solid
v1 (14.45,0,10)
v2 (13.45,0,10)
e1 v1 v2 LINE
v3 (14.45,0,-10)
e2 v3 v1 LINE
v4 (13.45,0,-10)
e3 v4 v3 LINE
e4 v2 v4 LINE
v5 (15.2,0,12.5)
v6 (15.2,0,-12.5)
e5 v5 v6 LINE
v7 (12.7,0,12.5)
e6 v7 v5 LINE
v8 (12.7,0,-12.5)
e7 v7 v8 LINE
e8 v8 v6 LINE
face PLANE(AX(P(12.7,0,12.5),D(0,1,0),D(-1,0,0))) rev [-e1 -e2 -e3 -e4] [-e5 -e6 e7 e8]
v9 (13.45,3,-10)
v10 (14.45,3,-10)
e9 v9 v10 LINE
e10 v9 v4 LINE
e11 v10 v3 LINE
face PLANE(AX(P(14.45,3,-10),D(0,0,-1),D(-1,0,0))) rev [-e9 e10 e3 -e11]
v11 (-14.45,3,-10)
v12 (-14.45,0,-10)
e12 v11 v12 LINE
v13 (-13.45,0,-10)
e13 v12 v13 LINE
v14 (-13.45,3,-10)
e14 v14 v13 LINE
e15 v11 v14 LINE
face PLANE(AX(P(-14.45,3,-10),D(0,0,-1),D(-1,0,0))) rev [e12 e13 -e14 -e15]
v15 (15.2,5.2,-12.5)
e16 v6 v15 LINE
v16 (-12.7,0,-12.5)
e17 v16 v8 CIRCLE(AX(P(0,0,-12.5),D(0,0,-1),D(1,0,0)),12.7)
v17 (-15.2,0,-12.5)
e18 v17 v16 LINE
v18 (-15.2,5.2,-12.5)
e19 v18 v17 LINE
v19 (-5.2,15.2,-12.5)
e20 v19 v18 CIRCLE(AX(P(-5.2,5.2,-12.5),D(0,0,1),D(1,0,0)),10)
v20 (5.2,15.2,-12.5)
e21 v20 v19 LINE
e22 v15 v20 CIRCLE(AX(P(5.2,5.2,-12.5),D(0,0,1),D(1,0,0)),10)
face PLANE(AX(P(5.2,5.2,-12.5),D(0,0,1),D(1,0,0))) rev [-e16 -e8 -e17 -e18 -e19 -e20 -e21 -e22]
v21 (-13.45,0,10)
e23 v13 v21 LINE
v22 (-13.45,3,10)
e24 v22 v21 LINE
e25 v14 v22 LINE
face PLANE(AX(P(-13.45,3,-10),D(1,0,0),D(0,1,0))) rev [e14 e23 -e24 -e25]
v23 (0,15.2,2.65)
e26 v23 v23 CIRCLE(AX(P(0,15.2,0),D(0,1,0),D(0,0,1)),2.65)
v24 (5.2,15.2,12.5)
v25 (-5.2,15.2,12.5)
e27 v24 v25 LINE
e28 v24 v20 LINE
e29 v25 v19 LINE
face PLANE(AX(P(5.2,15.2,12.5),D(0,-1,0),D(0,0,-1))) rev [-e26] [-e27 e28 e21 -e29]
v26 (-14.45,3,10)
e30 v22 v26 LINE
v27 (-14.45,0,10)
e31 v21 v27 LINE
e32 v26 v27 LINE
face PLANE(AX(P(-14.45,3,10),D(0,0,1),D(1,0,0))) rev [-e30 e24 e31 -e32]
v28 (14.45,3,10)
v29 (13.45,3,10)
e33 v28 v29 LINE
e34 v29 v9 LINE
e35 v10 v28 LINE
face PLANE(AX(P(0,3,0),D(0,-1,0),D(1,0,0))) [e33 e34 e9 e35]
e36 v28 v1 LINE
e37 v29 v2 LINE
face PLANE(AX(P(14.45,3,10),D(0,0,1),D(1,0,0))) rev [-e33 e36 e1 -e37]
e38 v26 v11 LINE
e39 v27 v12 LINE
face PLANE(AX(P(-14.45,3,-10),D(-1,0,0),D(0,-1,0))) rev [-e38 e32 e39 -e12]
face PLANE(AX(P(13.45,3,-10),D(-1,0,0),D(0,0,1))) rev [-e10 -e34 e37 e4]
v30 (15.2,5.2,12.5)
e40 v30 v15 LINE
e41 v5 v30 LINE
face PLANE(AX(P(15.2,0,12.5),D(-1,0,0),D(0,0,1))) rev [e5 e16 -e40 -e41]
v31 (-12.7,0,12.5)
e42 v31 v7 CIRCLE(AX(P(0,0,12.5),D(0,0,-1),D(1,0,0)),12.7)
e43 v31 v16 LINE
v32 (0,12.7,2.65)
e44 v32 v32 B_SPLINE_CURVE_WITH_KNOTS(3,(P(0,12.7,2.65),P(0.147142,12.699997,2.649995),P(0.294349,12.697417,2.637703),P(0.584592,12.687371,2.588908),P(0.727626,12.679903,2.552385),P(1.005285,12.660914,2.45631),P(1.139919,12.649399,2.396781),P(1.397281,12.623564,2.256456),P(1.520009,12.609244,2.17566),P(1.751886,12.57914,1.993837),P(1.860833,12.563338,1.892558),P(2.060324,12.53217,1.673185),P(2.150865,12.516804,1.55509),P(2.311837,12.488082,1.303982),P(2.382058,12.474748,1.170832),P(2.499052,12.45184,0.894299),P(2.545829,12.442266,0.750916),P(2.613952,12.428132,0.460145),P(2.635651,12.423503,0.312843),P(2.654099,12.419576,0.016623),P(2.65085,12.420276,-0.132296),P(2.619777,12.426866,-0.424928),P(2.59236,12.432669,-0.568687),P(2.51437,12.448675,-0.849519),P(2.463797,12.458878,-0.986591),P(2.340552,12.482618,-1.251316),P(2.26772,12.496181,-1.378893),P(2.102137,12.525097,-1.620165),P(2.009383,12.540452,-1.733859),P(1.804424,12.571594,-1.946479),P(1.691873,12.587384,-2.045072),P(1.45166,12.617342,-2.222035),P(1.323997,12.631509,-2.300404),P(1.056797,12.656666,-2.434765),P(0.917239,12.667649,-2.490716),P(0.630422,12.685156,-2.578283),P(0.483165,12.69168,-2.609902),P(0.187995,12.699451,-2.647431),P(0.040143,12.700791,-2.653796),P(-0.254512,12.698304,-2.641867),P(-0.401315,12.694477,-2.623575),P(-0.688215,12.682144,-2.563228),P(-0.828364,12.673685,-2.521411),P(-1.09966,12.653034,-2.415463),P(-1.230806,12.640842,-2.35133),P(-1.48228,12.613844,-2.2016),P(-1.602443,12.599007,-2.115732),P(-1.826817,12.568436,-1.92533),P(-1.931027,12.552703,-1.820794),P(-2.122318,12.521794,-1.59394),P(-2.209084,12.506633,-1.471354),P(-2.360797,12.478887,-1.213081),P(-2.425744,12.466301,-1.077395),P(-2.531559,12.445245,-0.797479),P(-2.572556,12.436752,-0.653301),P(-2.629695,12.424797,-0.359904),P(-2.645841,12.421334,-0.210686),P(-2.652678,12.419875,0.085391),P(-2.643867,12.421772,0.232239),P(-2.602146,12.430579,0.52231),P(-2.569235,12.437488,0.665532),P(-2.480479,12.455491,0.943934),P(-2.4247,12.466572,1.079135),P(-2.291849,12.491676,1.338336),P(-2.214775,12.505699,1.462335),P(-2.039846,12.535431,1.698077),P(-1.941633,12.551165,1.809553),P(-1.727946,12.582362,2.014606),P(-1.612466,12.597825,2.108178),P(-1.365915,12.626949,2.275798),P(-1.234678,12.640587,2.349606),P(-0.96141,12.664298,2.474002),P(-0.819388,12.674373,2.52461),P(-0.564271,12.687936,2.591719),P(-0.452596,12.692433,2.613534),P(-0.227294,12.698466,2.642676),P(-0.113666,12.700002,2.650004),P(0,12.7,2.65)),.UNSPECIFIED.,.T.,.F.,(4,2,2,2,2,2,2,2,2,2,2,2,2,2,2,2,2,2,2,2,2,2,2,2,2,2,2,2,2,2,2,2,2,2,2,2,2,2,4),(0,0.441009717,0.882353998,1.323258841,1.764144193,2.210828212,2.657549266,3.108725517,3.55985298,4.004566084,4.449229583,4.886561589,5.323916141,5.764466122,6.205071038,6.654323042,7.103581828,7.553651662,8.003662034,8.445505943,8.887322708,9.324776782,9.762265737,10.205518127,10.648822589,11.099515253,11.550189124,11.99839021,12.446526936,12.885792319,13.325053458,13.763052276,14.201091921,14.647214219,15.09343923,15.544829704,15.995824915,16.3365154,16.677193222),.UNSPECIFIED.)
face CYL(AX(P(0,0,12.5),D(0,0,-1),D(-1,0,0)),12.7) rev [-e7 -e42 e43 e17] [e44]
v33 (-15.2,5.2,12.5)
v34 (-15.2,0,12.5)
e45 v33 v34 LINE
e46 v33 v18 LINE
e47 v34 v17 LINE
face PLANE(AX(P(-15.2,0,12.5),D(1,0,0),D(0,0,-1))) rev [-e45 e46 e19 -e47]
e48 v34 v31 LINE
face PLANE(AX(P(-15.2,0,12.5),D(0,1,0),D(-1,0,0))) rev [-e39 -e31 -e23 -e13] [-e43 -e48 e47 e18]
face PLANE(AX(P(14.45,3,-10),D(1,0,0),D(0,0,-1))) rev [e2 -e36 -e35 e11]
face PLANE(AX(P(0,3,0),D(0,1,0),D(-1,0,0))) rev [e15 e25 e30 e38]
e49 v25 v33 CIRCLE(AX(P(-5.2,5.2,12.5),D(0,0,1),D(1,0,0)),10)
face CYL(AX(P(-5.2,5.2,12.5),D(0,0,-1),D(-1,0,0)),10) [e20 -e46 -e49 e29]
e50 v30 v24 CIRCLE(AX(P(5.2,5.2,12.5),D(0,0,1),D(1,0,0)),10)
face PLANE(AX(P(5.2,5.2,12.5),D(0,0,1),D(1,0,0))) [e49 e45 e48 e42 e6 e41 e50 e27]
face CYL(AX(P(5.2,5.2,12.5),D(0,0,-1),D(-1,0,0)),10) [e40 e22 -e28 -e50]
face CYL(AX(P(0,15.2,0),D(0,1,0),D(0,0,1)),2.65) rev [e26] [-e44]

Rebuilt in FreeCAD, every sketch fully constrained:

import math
import FreeCAD as App
import Part
import Sketcher
from FreeCAD import Vector
Q = App.Units.Quantity


def add_polygon(sketch, points):
    """Adds a closed chain of lines whose ends are joined by coincident constraints."""
    first, n = sketch.GeometryCount, len(points)
    for a, b in zip(points, points[1:] + points[:1]):
        sketch.addGeometry(Part.LineSegment(App.Vector(*a, 0), App.Vector(*b, 0)), False)
    for i in range(n):
        sketch.addConstraint(Sketcher.Constraint("Coincident", first + i, 2, first + (i + 1) % n, 1))

doc = App.newDocument("Part")
body = doc.addObject("PartDesign::Body", "Body")

sketch1 = body.newObject("Sketcher::SketchObject", "Sketch")
sketch1.AttachmentSupport = (doc.getObject("XY_Plane"), [""])
sketch1.MapMode = "FlatFace"
sketch1.addGeometry([
    Part.LineSegment(Vector(-15.2, 0, 0), Vector(-12.7, 0, 0)),
    Part.ArcOfCircle(Part.Circle(Vector(0, 0, 0), Vector(0, 0, 1), 12.7), math.radians(0), math.radians(180)),
    Part.LineSegment(Vector(12.7, 0, 0), Vector(15.2, 0, 0)),
    Part.LineSegment(Vector(15.2, 0, 0), Vector(15.2, 5.2, 0)),
    Part.ArcOfCircle(Part.Circle(Vector(5.2, 5.2, 0), Vector(0, 0, 1), 10), math.radians(0), math.radians(90)),
    Part.LineSegment(Vector(5.2, 15.2, 0), Vector(-5.2, 15.2, 0)),
    Part.ArcOfCircle(Part.Circle(Vector(-5.2, 5.2, 0), Vector(0, 0, 1), 10), math.radians(90), math.radians(180)),
    Part.LineSegment(Vector(-15.2, 5.2, 0), Vector(-15.2, 0, 0)),
], False)
sketch1.addConstraint([
    Sketcher.Constraint("Coincident", 0, 2, 1, 2),
    Sketcher.Constraint("Coincident", 1, 1, 2, 1),
    Sketcher.Constraint("Coincident", 2, 2, 3, 1),
    Sketcher.Constraint("Tangent", 3, 2, 4, 1),
    Sketcher.Constraint("Tangent", 4, 2, 5, 1),
    Sketcher.Constraint("Tangent", 5, 2, 6, 1),
    Sketcher.Constraint("Tangent", 6, 2, 7, 1),
    Sketcher.Constraint("Coincident", 7, 2, 0, 1),
    Sketcher.Constraint("Horizontal", 0),
    Sketcher.Constraint("Horizontal", 2),
    Sketcher.Constraint("Vertical", 3),
    Sketcher.Constraint("Horizontal", 5),
    Sketcher.Constraint("Vertical", 7),
    Sketcher.Constraint("Coincident", 1, 3, -1, 1),
    Sketcher.Constraint("Equal", 4, 6),
    Sketcher.Constraint("Symmetric", 2, 2, 7, 2, -1, 1),
    Sketcher.Constraint("PointOnObject", 0, 2, -1),
    Sketcher.Constraint("Radius", 4, Q("10 mm")),
    Sketcher.Constraint("Radius", 1, Q("12.7 mm")),
    Sketcher.Constraint("DistanceX", 0, 1, 0, 2, Q("2.5 mm")),
    Sketcher.Constraint("DistanceY", 3, 1, 3, 2, Q("5.2 mm")),
])
pad1 = body.newObject("PartDesign::Pad", "Pad")
pad1.Profile = sketch1
pad1.Length = 25
pad1.Midplane = True

sketch2 = body.newObject("Sketcher::SketchObject", "Sketch001")
sketch2.AttachmentSupport = (doc.getObject("XZ_Plane"), [""])
sketch2.MapMode = "FlatFace"
sketch2.AttachmentOffset = App.Placement(Vector(0, 0, -15.2), App.Rotation())
sketch2.addGeometry(Part.Circle(Vector(0, 0, 0), Vector(0, 0, 1), 2.65), False)
sketch2.addConstraint([
    Sketcher.Constraint("Coincident", 0, 3, -1, 1),
    Sketcher.Constraint("Diameter", 0, Q("5.3 mm")),
])
doc.recompute()
hole = body.newObject("PartDesign::Hole", "Hole")
hole.Profile = sketch2
hole.ThreadType = "None"
hole.Diameter = 5.3
hole.DepthType = "ThroughAll"
hole.Reversed = True

sketch3 = body.newObject("Sketcher::SketchObject", "Sketch002")
sketch3.AttachmentSupport = (doc.getObject("XZ_Plane"), [""])
sketch3.MapMode = "FlatFace"
add_polygon(sketch3, [(-14.45, 10), (-14.45, -10), (-13.45, -10), (-13.45, 10)])
add_polygon(sketch3, [(13.45, 10), (13.45, -10), (14.45, -10), (14.45, 10)])
sketch3.addConstraint([
    Sketcher.Constraint("Vertical", 0),
    Sketcher.Constraint("Horizontal", 1),
    Sketcher.Constraint("Vertical", 2),
    Sketcher.Constraint("Horizontal", 3),
    Sketcher.Constraint("Vertical", 4),
    Sketcher.Constraint("Horizontal", 5),
    Sketcher.Constraint("Vertical", 6),
    Sketcher.Constraint("Horizontal", 7),
    Sketcher.Constraint("Symmetric", 2, 2, 4, 2, -1, 1),
    Sketcher.Constraint("Symmetric", 0, 2, 6, 2, -1, 1),
    Sketcher.Constraint("Horizontal", 1, 2, 4, 2),
    Sketcher.Constraint("DistanceX", 1, 1, 1, 2, Q("1 mm")),
    Sketcher.Constraint("DistanceY", 0, 2, 0, 1, Q("20 mm")),
    Sketcher.Constraint("DistanceX", 1, 2, 4, 2, Q("26.9 mm")),
])
pocket1 = body.newObject("PartDesign::Pocket", "Pocket")
pocket1.Profile = sketch3
pocket1.Length = 3

doc.recompute()
